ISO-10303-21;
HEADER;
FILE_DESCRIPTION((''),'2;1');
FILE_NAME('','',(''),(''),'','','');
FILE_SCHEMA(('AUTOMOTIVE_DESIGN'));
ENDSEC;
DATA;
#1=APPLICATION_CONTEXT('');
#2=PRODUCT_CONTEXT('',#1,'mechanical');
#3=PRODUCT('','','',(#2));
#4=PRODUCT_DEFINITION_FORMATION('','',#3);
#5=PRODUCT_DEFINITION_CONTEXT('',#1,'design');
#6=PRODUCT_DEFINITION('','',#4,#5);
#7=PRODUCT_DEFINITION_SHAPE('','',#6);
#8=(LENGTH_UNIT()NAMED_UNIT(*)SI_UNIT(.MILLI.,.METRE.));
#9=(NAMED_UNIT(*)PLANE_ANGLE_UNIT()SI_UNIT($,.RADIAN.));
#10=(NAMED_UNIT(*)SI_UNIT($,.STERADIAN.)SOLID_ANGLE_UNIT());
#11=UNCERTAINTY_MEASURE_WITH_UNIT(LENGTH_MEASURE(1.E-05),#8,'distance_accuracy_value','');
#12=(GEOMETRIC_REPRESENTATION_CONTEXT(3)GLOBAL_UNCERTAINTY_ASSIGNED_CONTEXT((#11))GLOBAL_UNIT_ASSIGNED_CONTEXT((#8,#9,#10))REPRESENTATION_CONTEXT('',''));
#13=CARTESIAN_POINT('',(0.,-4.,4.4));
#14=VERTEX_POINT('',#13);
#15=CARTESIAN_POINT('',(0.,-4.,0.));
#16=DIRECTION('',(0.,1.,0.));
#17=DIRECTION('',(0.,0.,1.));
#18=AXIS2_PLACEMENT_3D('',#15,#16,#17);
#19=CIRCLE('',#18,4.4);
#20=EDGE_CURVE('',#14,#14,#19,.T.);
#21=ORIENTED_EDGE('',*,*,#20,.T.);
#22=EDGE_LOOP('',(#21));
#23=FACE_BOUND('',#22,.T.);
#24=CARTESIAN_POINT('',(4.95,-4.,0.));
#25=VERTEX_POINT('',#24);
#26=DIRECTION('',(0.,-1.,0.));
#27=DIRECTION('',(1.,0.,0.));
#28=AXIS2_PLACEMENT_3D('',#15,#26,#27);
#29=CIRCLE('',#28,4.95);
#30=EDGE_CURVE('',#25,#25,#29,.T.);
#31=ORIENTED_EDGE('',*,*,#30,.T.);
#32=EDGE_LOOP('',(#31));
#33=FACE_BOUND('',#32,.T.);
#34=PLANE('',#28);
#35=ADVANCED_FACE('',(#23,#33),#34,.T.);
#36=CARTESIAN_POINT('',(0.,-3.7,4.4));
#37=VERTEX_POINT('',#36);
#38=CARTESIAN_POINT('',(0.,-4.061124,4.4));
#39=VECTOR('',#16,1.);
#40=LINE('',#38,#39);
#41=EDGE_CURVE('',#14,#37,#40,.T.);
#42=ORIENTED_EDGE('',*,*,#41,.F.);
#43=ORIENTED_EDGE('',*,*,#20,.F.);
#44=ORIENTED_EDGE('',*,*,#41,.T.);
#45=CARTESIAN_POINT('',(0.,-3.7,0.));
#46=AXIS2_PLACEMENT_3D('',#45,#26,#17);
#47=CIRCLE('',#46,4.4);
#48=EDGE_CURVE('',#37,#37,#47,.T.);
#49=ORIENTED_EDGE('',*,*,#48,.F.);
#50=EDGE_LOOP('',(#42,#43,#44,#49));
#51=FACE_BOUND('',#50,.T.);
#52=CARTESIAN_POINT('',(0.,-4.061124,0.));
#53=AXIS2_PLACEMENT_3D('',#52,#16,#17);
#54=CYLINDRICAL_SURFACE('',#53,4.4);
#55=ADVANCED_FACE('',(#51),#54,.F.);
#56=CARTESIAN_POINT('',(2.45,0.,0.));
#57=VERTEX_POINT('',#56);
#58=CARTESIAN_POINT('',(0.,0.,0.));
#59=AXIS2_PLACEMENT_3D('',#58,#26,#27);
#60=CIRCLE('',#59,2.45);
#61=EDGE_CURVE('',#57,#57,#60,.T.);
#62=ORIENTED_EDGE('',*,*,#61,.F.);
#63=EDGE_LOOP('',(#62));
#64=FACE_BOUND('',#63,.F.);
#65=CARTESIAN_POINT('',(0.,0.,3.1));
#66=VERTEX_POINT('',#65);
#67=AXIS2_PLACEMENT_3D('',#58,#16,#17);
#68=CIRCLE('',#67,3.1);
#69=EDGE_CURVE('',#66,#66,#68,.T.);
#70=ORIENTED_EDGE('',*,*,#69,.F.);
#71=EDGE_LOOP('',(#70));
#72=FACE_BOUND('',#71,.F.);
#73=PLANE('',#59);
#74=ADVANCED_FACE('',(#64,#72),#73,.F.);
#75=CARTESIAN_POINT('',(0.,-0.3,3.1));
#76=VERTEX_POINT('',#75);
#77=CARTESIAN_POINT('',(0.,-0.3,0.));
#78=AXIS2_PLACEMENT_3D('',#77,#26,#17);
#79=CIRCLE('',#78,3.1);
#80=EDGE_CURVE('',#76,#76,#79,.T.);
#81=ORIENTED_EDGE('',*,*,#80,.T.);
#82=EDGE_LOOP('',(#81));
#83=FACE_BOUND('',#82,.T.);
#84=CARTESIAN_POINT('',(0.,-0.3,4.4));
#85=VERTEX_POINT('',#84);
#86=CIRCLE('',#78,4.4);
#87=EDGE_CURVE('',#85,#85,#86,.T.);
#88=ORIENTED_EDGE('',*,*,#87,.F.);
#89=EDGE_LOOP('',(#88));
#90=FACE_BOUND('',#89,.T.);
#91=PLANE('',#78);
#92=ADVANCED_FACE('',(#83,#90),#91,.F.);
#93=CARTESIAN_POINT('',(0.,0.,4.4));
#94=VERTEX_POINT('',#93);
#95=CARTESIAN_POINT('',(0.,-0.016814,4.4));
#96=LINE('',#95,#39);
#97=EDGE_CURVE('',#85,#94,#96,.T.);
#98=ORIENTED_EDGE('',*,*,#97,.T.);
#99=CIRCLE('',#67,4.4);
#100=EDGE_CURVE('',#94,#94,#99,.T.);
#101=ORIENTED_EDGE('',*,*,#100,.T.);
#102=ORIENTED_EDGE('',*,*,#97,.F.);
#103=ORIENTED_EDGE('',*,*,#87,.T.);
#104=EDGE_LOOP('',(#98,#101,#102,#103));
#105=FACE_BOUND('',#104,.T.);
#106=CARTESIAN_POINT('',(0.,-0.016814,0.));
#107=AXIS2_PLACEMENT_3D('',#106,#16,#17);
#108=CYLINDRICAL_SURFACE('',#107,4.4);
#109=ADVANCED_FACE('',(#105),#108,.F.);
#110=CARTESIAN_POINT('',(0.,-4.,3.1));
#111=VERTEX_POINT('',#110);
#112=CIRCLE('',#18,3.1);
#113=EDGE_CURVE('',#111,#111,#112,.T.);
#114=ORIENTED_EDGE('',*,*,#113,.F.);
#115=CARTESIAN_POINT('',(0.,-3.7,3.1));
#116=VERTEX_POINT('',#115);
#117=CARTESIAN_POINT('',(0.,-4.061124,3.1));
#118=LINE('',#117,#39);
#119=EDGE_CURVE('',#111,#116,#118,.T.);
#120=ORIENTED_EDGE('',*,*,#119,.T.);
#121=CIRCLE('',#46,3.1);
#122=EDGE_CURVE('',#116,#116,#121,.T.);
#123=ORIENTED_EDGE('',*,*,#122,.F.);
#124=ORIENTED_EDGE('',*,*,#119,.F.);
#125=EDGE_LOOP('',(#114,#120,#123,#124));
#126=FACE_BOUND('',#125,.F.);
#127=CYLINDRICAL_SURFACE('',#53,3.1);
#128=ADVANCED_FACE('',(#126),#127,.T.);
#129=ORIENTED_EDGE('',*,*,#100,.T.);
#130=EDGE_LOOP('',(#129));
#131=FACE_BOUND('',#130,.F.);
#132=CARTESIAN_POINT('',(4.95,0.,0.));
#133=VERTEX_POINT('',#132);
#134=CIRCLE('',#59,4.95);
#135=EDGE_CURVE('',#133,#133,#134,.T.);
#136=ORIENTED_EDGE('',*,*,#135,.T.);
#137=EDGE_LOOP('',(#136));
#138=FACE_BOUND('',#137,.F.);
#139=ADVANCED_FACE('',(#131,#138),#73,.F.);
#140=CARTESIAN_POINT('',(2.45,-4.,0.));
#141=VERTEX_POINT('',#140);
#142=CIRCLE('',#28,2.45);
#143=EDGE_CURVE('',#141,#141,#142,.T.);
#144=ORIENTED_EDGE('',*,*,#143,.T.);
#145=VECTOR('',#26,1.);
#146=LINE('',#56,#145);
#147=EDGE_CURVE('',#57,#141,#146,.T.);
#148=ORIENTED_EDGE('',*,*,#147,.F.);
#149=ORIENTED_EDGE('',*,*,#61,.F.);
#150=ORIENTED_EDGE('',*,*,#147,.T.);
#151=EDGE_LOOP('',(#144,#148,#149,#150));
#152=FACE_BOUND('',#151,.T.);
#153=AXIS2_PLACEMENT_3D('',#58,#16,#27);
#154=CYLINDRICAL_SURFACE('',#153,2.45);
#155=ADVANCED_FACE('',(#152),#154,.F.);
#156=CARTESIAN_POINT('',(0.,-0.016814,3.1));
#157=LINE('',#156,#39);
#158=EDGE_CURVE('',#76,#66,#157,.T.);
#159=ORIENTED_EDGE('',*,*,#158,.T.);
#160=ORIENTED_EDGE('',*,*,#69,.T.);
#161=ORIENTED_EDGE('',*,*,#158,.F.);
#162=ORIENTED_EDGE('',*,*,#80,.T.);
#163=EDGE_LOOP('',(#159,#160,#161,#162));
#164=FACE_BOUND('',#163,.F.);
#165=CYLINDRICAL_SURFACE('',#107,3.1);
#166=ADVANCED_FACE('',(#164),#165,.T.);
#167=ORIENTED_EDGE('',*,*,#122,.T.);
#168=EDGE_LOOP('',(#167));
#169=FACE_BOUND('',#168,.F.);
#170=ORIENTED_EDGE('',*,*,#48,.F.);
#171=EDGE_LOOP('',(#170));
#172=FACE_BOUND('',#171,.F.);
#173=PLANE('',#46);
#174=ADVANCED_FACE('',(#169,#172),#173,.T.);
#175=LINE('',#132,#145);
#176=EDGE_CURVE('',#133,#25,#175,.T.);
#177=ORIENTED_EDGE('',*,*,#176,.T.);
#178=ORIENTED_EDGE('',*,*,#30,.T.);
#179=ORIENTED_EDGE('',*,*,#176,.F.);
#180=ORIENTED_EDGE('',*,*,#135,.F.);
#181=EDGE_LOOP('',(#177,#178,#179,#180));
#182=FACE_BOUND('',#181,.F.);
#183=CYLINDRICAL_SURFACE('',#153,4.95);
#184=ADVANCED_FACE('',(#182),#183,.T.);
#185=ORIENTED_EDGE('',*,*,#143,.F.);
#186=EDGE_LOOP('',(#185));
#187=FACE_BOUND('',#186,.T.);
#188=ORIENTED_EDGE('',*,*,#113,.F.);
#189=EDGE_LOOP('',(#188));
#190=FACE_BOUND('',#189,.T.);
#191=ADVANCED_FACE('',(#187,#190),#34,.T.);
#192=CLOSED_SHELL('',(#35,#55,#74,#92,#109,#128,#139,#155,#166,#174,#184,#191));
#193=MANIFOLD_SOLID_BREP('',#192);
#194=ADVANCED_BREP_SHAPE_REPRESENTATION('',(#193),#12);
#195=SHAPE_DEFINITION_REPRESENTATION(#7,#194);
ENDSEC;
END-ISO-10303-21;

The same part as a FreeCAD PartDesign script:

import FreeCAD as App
import Part
import Sketcher
from FreeCAD import Vector

doc = App.newDocument("Part")
body = doc.addObject("PartDesign::Body", "Body")

sketch1 = doc.addObject("Sketcher::SketchObject", "Sketch")
body.addObject(sketch1)
sketch1.AttachmentSupport = (doc.XZ_Plane, [""])
sketch1.MapMode = "FlatFace"
sketch1.addGeometry(Part.Circle(Vector(0, 0, 0), Vector(0, 0, 1), 5), False)
sketch1.addGeometry(Part.Circle(Vector(0, 0, 0), Vector(0, 0, 1), 2.5), False)
sketch1.addConstraint(Sketcher.Constraint("Coincident", 0, 3, -1, 1))
sketch1.addConstraint(Sketcher.Constraint("Coincident", 1, 3, -1, 1))
sketch1.addConstraint(Sketcher.Constraint("Diameter", 0, 9.9))
sketch1.addConstraint(Sketcher.Constraint("Diameter", 1, 4.9))
pad1 = doc.addObject("PartDesign::Pad", "Pad")
body.addObject(pad1)
pad1.Profile = sketch1
pad1.Length = 4

sketch2 = doc.addObject("Sketcher::SketchObject", "Sketch001")
body.addObject(sketch2)
sketch2.AttachmentSupport = (doc.YZ_Plane, [""])
sketch2.MapMode = "FlatFace"
sketch2.addGeometry(Part.LineSegment(Vector(-4.4, 4.4, 0), Vector(-4.4, 3.1, 0)), False)
sketch2.addGeometry(Part.LineSegment(Vector(-4.4, 3.1, 0), Vector(-3.7, 3.1, 0)), False)
sketch2.addGeometry(Part.LineSegment(Vector(-3.7, 3.1, 0), Vector(-3.7, 4.4, 0)), False)
sketch2.addGeometry(Part.LineSegment(Vector(-3.7, 4.4, 0), Vector(-4.4, 4.4, 0)), False)
sketch2.addGeometry(Part.LineSegment(Vector(-0.3, 4.4, 0), Vector(-0.3, 3.1, 0)), False)
sketch2.addGeometry(Part.LineSegment(Vector(-0.3, 3.1, 0), Vector(0.3, 3.1, 0)), False)
sketch2.addGeometry(Part.LineSegment(Vector(0.3, 3.1, 0), Vector(0.3, 4.4, 0)), False)
sketch2.addGeometry(Part.LineSegment(Vector(0.3, 4.4, 0), Vector(-0.3, 4.4, 0)), False)
sketch2.addConstraint(Sketcher.Constraint("Coincident", 0, 2, 1, 1))
sketch2.addConstraint(Sketcher.Constraint("Coincident", 1, 2, 2, 1))
sketch2.addConstraint(Sketcher.Constraint("Coincident", 2, 2, 3, 1))
sketch2.addConstraint(Sketcher.Constraint("Coincident", 3, 2, 0, 1))
sketch2.addConstraint(Sketcher.Constraint("Coincident", 4, 2, 5, 1))
sketch2.addConstraint(Sketcher.Constraint("Coincident", 5, 2, 6, 1))
sketch2.addConstraint(Sketcher.Constraint("Coincident", 6, 2, 7, 1))
sketch2.addConstraint(Sketcher.Constraint("Coincident", 7, 2, 4, 1))
sketch2.addConstraint(Sketcher.Constraint("Vertical", 0))
sketch2.addConstraint(Sketcher.Constraint("Horizontal", 1))
sketch2.addConstraint(Sketcher.Constraint("Vertical", 2))
sketch2.addConstraint(Sketcher.Constraint("Horizontal", 3))
sketch2.addConstraint(Sketcher.Constraint("Vertical", 4))
sketch2.addConstraint(Sketcher.Constraint("Horizontal", 5))
sketch2.addConstraint(Sketcher.Constraint("Vertical", 6))
sketch2.addConstraint(Sketcher.Constraint("Horizontal", 7))
sketch2.addConstraint(Sketcher.Constraint("Horizontal", 1, 2, 4, 2))
sketch2.addConstraint(Sketcher.Constraint("Horizontal", 3, 2, 6, 2))
sketch2.addConstraint(Sketcher.Constraint("DistanceY", 0, 2, 0, 1, 1.3))
sketch2.addConstraint(Sketcher.Constraint("DistanceY", -1, 1, 0, 2, 3.1))
sketch2.addConstraint(Sketcher.Constraint("DistanceX", 1, 2, -1, 1, 3.7))
sketch2.addConstraint(Sketcher.Constraint("DistanceX", 4, 2, -1, 1, 0.3))
sketch2.addConstraint(Sketcher.Constraint("DistanceX", 5, 1, 5, 2, 0.566372))
sketch2.addConstraint(Sketcher.Constraint("DistanceX", 1, 1, 1, 2, 0.722248))
groove = doc.addObject("PartDesign::Groove", "Groove")
body.addObject(groove)
groove.Profile = sketch2
groove.ReferenceAxis = (sketch2, ["H_Axis"])
groove.Angle = 360

doc.recompute()
